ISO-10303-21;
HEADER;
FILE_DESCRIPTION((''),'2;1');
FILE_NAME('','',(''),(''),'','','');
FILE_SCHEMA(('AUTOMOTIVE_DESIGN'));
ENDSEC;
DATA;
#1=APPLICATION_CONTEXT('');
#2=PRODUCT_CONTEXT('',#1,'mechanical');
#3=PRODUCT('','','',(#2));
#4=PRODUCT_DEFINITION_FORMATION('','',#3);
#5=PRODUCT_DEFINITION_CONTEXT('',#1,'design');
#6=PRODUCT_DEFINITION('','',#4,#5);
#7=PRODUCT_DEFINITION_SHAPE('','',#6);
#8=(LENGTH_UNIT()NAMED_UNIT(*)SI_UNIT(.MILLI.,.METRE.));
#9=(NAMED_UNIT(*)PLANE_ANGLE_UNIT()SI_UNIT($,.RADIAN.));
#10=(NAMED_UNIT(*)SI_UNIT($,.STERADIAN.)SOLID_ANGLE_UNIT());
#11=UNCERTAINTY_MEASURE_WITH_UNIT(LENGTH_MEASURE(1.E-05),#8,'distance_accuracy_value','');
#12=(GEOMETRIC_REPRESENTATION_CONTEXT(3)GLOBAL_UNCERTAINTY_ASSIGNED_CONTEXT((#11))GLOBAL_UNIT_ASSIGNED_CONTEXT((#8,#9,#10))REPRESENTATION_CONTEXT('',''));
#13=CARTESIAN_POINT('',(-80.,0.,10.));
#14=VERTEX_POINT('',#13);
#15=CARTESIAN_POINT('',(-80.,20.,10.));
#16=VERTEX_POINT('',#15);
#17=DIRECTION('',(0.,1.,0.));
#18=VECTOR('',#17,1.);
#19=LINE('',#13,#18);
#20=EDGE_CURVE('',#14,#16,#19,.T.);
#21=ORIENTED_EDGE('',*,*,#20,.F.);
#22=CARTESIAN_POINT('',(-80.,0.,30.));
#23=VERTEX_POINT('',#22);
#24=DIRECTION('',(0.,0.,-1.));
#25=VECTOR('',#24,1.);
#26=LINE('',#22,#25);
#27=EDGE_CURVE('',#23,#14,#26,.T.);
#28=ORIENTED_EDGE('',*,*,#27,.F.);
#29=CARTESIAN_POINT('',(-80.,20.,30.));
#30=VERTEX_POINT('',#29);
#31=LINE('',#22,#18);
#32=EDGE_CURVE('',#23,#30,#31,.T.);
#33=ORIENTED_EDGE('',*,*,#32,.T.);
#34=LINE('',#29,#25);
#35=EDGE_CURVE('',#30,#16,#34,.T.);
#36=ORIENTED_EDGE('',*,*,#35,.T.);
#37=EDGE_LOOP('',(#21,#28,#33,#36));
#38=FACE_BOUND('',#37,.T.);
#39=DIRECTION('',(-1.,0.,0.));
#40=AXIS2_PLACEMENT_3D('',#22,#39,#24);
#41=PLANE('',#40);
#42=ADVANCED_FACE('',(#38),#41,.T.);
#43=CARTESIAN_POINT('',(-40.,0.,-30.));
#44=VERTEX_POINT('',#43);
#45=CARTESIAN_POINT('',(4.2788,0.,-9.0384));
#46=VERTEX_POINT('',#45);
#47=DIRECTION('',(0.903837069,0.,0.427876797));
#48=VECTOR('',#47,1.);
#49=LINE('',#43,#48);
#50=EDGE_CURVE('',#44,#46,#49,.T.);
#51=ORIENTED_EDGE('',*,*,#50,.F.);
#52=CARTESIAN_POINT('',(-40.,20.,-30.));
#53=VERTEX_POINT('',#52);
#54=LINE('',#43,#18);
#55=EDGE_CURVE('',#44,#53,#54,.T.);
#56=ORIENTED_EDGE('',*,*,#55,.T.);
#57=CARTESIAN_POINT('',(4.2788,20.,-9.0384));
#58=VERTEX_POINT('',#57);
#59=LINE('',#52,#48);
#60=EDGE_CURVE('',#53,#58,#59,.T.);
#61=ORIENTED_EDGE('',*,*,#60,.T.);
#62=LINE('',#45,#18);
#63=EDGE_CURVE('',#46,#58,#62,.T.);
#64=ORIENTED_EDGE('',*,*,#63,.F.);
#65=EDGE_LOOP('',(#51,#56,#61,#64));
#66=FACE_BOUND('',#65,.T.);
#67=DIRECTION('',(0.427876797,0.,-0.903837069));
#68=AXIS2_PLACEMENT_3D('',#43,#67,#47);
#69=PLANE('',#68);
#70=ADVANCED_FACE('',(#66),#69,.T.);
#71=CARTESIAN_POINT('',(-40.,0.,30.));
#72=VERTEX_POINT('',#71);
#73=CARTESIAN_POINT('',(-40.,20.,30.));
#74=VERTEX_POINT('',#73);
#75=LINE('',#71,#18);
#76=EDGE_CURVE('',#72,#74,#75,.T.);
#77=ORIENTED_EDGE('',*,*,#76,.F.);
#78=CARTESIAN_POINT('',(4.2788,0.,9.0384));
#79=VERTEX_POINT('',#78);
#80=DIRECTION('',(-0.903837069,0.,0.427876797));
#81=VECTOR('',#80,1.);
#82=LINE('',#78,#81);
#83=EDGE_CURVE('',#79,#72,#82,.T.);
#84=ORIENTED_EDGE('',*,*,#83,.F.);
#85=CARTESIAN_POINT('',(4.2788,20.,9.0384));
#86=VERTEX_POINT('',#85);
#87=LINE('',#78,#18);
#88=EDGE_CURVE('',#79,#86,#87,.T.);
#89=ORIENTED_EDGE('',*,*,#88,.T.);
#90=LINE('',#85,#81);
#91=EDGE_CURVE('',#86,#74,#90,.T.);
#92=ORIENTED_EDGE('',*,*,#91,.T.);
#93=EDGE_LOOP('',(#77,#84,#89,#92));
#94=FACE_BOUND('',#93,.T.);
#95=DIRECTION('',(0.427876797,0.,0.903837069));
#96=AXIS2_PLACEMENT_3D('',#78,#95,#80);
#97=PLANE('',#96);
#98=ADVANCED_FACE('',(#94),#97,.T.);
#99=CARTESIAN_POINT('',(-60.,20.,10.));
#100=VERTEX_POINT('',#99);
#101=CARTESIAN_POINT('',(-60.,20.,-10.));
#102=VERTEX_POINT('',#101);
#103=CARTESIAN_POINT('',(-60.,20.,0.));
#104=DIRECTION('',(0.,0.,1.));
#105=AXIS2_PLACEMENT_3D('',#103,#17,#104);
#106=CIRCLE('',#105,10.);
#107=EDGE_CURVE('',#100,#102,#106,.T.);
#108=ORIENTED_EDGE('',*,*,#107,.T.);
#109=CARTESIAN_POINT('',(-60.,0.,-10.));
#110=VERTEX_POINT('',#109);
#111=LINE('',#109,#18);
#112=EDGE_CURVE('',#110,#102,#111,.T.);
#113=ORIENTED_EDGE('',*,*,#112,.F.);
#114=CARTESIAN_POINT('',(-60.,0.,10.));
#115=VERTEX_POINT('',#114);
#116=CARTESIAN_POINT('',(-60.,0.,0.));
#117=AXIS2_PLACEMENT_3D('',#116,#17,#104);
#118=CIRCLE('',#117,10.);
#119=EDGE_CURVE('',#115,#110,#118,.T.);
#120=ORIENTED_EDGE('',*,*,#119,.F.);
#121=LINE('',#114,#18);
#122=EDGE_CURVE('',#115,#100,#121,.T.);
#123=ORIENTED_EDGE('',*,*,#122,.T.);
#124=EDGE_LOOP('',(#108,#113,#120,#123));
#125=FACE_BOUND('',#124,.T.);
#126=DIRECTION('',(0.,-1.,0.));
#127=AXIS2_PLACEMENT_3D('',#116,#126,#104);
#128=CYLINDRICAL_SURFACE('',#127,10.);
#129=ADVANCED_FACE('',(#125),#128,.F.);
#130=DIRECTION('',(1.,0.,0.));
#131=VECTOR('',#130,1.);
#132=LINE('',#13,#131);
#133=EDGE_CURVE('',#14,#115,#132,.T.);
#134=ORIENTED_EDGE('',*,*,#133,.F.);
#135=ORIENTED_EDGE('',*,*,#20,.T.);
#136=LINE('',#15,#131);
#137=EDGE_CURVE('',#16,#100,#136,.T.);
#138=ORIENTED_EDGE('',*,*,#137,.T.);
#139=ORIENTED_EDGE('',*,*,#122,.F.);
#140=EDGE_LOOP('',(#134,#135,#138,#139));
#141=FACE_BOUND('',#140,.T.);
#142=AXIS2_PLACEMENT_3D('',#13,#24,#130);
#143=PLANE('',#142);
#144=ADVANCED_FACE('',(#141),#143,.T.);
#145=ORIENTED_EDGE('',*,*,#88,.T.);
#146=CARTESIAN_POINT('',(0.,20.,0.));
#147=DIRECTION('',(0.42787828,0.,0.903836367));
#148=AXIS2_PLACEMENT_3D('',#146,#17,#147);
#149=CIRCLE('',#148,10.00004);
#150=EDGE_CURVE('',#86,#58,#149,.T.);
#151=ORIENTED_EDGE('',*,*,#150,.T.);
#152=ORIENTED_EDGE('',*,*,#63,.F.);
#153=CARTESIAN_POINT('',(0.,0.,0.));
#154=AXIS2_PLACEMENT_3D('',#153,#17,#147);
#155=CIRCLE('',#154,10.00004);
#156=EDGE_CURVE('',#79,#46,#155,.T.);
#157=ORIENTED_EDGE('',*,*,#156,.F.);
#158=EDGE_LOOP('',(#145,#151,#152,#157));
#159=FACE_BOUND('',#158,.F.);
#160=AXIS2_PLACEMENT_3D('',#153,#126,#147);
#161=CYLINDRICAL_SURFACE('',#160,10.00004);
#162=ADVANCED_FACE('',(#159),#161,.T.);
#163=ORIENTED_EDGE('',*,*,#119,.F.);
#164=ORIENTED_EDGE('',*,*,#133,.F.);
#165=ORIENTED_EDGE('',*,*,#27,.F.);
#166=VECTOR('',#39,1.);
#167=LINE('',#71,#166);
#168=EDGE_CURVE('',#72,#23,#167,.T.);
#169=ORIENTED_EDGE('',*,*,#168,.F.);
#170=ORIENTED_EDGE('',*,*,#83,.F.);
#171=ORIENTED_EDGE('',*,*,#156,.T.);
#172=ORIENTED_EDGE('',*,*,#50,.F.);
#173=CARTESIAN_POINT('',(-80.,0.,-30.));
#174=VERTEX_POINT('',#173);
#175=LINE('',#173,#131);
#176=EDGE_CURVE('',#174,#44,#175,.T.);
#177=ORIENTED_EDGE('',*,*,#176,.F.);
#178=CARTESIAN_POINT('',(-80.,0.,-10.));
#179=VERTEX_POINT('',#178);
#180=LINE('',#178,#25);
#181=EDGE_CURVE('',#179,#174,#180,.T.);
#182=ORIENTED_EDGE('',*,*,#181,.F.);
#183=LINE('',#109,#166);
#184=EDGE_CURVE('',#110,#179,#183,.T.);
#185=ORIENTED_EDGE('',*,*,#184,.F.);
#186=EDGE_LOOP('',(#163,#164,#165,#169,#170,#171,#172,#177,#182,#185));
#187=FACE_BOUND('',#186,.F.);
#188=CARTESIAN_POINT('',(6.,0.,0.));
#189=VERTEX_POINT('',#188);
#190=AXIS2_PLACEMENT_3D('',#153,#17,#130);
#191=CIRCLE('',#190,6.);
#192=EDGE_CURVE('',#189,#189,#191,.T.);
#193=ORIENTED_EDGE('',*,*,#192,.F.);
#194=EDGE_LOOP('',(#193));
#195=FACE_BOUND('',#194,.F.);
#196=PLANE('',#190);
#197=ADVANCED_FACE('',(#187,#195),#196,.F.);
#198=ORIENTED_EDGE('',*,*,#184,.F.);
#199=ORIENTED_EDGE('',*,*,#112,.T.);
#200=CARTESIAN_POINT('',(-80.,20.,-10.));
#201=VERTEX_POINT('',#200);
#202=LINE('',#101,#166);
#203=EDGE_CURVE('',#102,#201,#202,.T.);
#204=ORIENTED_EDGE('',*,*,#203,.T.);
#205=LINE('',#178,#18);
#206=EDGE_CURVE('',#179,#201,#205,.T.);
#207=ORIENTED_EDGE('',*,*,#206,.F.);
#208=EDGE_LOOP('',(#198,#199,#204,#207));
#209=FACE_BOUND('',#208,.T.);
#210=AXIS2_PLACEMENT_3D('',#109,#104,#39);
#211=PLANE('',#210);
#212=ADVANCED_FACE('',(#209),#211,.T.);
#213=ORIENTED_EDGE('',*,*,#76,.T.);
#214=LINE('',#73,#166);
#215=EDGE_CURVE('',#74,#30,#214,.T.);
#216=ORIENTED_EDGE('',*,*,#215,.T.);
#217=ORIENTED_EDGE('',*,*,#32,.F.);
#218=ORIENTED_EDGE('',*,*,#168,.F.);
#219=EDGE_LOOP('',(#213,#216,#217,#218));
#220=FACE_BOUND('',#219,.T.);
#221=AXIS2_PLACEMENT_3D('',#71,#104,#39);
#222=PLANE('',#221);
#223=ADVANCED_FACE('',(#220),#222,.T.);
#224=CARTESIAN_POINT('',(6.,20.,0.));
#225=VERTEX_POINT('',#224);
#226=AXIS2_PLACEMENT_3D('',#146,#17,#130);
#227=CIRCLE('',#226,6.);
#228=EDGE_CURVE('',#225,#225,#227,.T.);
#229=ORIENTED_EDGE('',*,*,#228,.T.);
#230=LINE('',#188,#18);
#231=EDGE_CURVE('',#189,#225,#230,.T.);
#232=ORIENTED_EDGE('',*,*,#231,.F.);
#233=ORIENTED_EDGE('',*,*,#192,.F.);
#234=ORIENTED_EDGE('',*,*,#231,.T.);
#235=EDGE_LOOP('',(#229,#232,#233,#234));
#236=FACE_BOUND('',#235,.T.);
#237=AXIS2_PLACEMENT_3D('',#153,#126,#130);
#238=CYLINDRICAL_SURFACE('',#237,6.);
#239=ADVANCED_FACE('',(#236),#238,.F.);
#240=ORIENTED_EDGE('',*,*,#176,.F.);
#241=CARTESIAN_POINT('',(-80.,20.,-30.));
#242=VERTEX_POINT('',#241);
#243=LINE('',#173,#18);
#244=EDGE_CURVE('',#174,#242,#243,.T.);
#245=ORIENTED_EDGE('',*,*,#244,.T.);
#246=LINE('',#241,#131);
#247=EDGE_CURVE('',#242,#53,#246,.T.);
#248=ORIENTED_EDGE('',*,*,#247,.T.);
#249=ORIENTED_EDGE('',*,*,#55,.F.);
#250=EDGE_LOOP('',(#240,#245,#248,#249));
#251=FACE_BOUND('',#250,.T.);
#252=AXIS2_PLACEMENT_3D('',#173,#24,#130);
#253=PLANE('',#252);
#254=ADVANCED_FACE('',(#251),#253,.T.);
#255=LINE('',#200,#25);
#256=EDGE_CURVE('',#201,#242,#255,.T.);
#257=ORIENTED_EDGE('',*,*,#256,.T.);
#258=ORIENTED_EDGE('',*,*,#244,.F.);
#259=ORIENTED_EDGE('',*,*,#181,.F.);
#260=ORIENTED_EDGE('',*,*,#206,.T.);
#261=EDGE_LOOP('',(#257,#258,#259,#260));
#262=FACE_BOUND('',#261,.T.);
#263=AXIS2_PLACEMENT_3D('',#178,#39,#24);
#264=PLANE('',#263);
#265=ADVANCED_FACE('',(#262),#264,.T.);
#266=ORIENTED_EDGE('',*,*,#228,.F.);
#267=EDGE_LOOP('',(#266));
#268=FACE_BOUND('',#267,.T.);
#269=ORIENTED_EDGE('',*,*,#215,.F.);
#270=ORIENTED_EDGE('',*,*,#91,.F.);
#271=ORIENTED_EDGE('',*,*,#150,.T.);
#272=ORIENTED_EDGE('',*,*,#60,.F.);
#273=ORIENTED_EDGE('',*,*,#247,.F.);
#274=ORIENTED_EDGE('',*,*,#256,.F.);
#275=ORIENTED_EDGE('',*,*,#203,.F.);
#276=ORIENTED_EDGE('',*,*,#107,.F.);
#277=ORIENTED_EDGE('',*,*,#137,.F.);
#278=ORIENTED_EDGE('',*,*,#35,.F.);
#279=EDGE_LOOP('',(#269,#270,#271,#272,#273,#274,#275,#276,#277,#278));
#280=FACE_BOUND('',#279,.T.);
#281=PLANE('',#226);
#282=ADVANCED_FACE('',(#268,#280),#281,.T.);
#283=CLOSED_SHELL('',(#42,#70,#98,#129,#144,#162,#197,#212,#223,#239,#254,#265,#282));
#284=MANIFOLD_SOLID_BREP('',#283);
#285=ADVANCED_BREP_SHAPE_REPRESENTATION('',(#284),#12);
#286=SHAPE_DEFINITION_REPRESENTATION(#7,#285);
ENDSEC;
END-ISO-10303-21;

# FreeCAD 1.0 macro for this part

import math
import FreeCAD as App
import Part
import Sketcher
from FreeCAD import Vector

doc = App.newDocument("Part")
params = doc.addObject("Spreadsheet::Sheet", "Params")
for row, (alias, value) in enumerate([
    ("sketch1_diameter", "12 mm"),
    ("sketch1_radius", "10 mm"),
    ("sketch1_width", "40 mm"),
    ("sketch1_width2", "20 mm"),
    ("pad1_length", "20 mm"),
], start=1):
    params.set(f"A{row}", alias)
    params.set(f"B{row}", "=" + value)
    params.setAlias(f"B{row}", alias)

body = doc.addObject("PartDesign::Body", "Body")

# Sketch on XZ plane
sketch1 = doc.addObject("Sketcher::SketchObject", "Sketch")
body.addObject(sketch1)
sketch1.AttachmentSupport = (doc.XZ_Plane, [""])
sketch1.MapMode = "FlatFace"
sketch1.addGeometry(Part.LineSegment(Vector(-40, -30, 0), Vector(-80, -30, 0)), False)
sketch1.addGeometry(Part.LineSegment(Vector(-80, -30, 0), Vector(-80, -10, 0)), False)
sketch1.addGeometry(Part.LineSegment(Vector(-80, -10, 0), Vector(-60, -10, 0)), False)
sketch1.addGeometry(Part.ArcOfCircle(Part.Circle(Vector(-60, 0, 0), Vector(0, 0, 1), 10), math.radians(-90), math.radians(90)), False)
sketch1.addGeometry(Part.LineSegment(Vector(-60, 10, 0), Vector(-80, 10, 0)), False)
sketch1.addGeometry(Part.LineSegment(Vector(-80, 10, 0), Vector(-80, 30, 0)), False)
sketch1.addGeometry(Part.LineSegment(Vector(-80, 30, 0), Vector(-40, 30, 0)), False)
sketch1.addGeometry(Part.LineSegment(Vector(-40, 30, 0), Vector(4, 9, 0)), False)
sketch1.addGeometry(Part.ArcOfCircle(Part.Circle(Vector(0, 0, 0), Vector(0, 0, 1), 10), math.radians(-65), math.radians(65)), False)
sketch1.addGeometry(Part.LineSegment(Vector(4, -9, 0), Vector(-40, -30, 0)), False)
sketch1.addGeometry(Part.Circle(Vector(0, 0, 0), Vector(0, 0, 1), 6), False)
sketch1.addConstraint(Sketcher.Constraint("Coincident", 0, 2, 1, 1))
sketch1.addConstraint(Sketcher.Constraint("Coincident", 1, 2, 2, 1))
sketch1.addConstraint(Sketcher.Constraint("Tangent", 2, 2, 3, 1))
sketch1.addConstraint(Sketcher.Constraint("Tangent", 3, 2, 4, 1))
sketch1.addConstraint(Sketcher.Constraint("Coincident", 4, 2, 5, 1))
sketch1.addConstraint(Sketcher.Constraint("Coincident", 5, 2, 6, 1))
sketch1.addConstraint(Sketcher.Constraint("Coincident", 6, 2, 7, 1))
sketch1.addConstraint(Sketcher.Constraint("Tangent", 7, 2, 8, 2))
sketch1.addConstraint(Sketcher.Constraint("Tangent", 8, 1, 9, 1))
sketch1.addConstraint(Sketcher.Constraint("Coincident", 9, 2, 0, 1))
sketch1.addConstraint(Sketcher.Constraint("Horizontal", 0))
sketch1.addConstraint(Sketcher.Constraint("Vertical", 1))
sketch1.addConstraint(Sketcher.Constraint("Horizontal", 2))
sketch1.addConstraint(Sketcher.Constraint("Horizontal", 4))
sketch1.addConstraint(Sketcher.Constraint("Vertical", 5))
sketch1.addConstraint(Sketcher.Constraint("Horizontal", 6))
sketch1.addConstraint(Sketcher.Constraint("Coincident", 8, 3, -1, 1))
sketch1.addConstraint(Sketcher.Constraint("Coincident", 10, 3, -1, 1))
sketch1.addConstraint(Sketcher.Constraint("Equal", 3, 8))
sketch1.addConstraint(Sketcher.Constraint("Symmetric", 1, 2, 4, 2, -1))
sketch1.addConstraint(Sketcher.Constraint("Symmetric", 6, 2, 9, 2, -1))
sketch1.addConstraint(Sketcher.Constraint("Equal", 4, 1))
sketch1.addConstraint(Sketcher.Constraint("Diameter", 10, 12.0))
sketch1.addConstraint(Sketcher.Constraint("Radius", 3, 10.0))
sketch1.addConstraint(Sketcher.Constraint("DistanceX", 0, 2, 0, 1, 40.0))
sketch1.addConstraint(Sketcher.Constraint("DistanceX", 2, 1, 2, 2, 20.0))
sketch1.addConstraint(Sketcher.Constraint("DistanceX", 3, 3, -1, 1, 60.0))
sketch1.setExpression("Constraints[22]", "Params.sketch1_diameter")
sketch1.setExpression("Constraints[23]", "Params.sketch1_radius")
sketch1.setExpression("Constraints[24]", "Params.sketch1_width")
sketch1.setExpression("Constraints[25]", "Params.sketch1_width2")
pad1 = doc.addObject("PartDesign::Pad", "Pad")
body.addObject(pad1)
pad1.Profile = sketch1
pad1.setExpression("Length", "Params.pad1_length")
pad1.Reversed = True

doc.recompute()
